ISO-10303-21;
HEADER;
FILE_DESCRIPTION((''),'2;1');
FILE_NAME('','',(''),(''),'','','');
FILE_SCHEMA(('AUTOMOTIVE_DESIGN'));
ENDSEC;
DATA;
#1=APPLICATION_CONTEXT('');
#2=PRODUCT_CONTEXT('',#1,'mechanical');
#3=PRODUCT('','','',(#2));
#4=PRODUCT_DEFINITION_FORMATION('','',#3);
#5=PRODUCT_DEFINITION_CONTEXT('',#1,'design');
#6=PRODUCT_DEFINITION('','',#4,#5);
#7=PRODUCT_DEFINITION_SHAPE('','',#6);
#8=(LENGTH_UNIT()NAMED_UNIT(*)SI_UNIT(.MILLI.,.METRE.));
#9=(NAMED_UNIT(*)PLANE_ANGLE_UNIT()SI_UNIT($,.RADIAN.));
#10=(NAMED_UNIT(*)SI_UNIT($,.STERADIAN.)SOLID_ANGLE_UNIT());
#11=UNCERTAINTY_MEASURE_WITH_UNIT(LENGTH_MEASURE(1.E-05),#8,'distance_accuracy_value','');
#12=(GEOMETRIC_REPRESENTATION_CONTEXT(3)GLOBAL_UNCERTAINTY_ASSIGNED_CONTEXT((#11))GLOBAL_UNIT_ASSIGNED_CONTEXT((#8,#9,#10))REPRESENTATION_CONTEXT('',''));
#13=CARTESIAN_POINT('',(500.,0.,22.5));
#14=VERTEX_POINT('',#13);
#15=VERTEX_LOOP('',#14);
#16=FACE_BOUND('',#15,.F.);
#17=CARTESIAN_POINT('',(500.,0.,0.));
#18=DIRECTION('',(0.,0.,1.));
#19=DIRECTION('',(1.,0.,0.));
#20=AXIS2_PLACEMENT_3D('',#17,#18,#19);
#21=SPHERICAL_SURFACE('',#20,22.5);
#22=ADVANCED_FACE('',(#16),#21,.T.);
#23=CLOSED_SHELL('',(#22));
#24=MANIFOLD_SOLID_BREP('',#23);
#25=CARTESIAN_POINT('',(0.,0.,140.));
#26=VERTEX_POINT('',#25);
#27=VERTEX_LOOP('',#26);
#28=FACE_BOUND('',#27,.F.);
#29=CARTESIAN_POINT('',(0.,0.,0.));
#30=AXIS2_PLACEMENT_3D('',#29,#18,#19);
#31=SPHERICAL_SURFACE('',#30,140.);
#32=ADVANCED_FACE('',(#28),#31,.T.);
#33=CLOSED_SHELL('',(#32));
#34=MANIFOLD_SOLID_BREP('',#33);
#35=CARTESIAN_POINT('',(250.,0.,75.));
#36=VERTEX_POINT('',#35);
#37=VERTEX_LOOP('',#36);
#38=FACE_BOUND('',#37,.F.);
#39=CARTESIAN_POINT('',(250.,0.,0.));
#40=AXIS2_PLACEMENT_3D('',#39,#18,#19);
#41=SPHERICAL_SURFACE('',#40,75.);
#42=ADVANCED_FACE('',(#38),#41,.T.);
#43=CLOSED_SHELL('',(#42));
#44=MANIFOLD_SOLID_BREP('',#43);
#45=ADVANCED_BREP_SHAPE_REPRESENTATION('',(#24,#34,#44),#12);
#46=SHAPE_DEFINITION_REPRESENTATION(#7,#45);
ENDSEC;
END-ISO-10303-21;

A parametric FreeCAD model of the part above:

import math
import FreeCAD as App
import Part
import Sketcher

V = App.Vector
Q = App.Units.Quantity

doc = App.newDocument("Part")
params = doc.addObject("Spreadsheet::Sheet", "Params")
for row, (alias, value) in enumerate([
    ("sketch1_radius", "140 mm"),
    ("revolution_angle", "360 deg"),
    ("sketch2_radius", "75 mm"),
    ("revolution2_angle", "360 deg"),
    ("sketch3_radius", "22.5 mm"),
    ("revolution3_angle", "360 deg"),
], start=1):
    params.set(f"A{row}", alias)
    params.set(f"B{row}", "=" + value)
    params.setAlias(f"B{row}", alias)

body = doc.addObject("PartDesign::Body", "Body")

# Sketch on XZ plane
sketch1 = doc.addObject("Sketcher::SketchObject", "Sketch")
body.addObject(sketch1)
sketch1.AttachmentSupport = (doc.XZ_Plane, [""])
sketch1.MapMode = "FlatFace"
sketch1.addGeometry([
    Part.LineSegment(V(0, 140, 0), V(0, -140, 0)),
    Part.ArcOfCircle(Part.Circle(V(0, 0, 0), V(0, 0, 1), 140), math.radians(-90), math.radians(90)),
], False)
sketch1.addConstraint([
    Sketcher.Constraint("Coincident", 0, 1, 1, 2),
    Sketcher.Constraint("Coincident", 1, 1, 0, 2),
    Sketcher.Constraint("Vertical", 0),
    Sketcher.Constraint("Coincident", 1, 3, -1, 1),
    Sketcher.Constraint("PointOnObject", 0, 1, -2),
    Sketcher.Constraint("Radius", 1, Q("140 mm")),
])
sketch1.setExpression("Constraints[5]", "Params.sketch1_radius")
revolution = doc.addObject("PartDesign::Revolution", "Revolution")
body.addObject(revolution)
revolution.Profile = sketch1
revolution.ReferenceAxis = (sketch1, ["V_Axis"])
revolution.setExpression("Angle", "Params.revolution_angle")
body2 = doc.addObject("PartDesign::Body", "Body001")

# Sketch on XZ plane
sketch2 = doc.addObject("Sketcher::SketchObject", "Sketch001")
body2.addObject(sketch2)
sketch2.AttachmentSupport = (doc.getObject("XZ_Plane001"), [""])
sketch2.MapMode = "FlatFace"
sketch2.addGeometry([
    Part.LineSegment(V(250, 75, 0), V(250, -75, 0)),
    Part.ArcOfCircle(Part.Circle(V(250, 0, 0), V(0, 0, 1), 75), math.radians(-90), math.radians(90)),
], False)
sketch2.addGeometry(Part.LineSegment(V(250, 75, 0), V(250, -75, 0)), True)  # axis
sketch2.addConstraint([
    Sketcher.Constraint("Coincident", 0, 1, 1, 2),
    Sketcher.Constraint("Coincident", 1, 1, 0, 2),
    Sketcher.Constraint("Vertical", 0),
    Sketcher.Constraint("Vertical", 2),
    Sketcher.Constraint("Coincident", 2, 1, 0, 1),
    Sketcher.Constraint("PointOnObject", 1, 3, -1),
    Sketcher.Constraint("Vertical", 1, 3, 0, 1),
    Sketcher.Constraint("Equal", 0, 2),
    Sketcher.Constraint("Radius", 1, Q("75 mm")),
    Sketcher.Constraint("DistanceX", -1, 1, 1, 3, Q("250 mm")),
])
sketch2.setExpression("Constraints[8]", "Params.sketch2_radius")
revolution2 = doc.addObject("PartDesign::Revolution", "Revolution001")
body2.addObject(revolution2)
revolution2.Profile = sketch2
revolution2.ReferenceAxis = (sketch2, ["Axis0"])
revolution2.setExpression("Angle", "Params.revolution2_angle")
body3 = doc.addObject("PartDesign::Body", "Body002")

# Sketch on XZ plane
sketch3 = doc.addObject("Sketcher::SketchObject", "Sketch002")
body3.addObject(sketch3)
sketch3.AttachmentSupport = (doc.getObject("XZ_Plane002"), [""])
sketch3.MapMode = "FlatFace"
sketch3.addGeometry([
    Part.LineSegment(V(500, 22.5, 0), V(500, -22.5, 0)),
    Part.ArcOfCircle(Part.Circle(V(500, 0, 0), V(0, 0, 1), 22.5), math.radians(-90), math.radians(90)),
], False)
sketch3.addGeometry(Part.LineSegment(V(500, 22.5, 0), V(500, -22.5, 0)), True)  # axis
sketch3.addConstraint([
    Sketcher.Constraint("Coincident", 0, 1, 1, 2),
    Sketcher.Constraint("Coincident", 1, 1, 0, 2),
    Sketcher.Constraint("Vertical", 0),
    Sketcher.Constraint("Vertical", 2),
    Sketcher.Constraint("Coincident", 2, 1, 0, 1),
    Sketcher.Constraint("PointOnObject", 1, 3, -1),
    Sketcher.Constraint("Vertical", 1, 3, 0, 1),
    Sketcher.Constraint("Equal", 0, 2),
    Sketcher.Constraint("Radius", 1, Q("22.5 mm")),
    Sketcher.Constraint("DistanceX", -1, 1, 1, 3, Q("500 mm")),
])
sketch3.setExpression("Constraints[8]", "Params.sketch3_radius")
revolution3 = doc.addObject("PartDesign::Revolution", "Revolution002")
body3.addObject(revolution3)
revolution3.Profile = sketch3
revolution3.ReferenceAxis = (sketch3, ["Axis0"])
revolution3.setExpression("Angle", "Params.revolution3_angle")

doc.recompute()
